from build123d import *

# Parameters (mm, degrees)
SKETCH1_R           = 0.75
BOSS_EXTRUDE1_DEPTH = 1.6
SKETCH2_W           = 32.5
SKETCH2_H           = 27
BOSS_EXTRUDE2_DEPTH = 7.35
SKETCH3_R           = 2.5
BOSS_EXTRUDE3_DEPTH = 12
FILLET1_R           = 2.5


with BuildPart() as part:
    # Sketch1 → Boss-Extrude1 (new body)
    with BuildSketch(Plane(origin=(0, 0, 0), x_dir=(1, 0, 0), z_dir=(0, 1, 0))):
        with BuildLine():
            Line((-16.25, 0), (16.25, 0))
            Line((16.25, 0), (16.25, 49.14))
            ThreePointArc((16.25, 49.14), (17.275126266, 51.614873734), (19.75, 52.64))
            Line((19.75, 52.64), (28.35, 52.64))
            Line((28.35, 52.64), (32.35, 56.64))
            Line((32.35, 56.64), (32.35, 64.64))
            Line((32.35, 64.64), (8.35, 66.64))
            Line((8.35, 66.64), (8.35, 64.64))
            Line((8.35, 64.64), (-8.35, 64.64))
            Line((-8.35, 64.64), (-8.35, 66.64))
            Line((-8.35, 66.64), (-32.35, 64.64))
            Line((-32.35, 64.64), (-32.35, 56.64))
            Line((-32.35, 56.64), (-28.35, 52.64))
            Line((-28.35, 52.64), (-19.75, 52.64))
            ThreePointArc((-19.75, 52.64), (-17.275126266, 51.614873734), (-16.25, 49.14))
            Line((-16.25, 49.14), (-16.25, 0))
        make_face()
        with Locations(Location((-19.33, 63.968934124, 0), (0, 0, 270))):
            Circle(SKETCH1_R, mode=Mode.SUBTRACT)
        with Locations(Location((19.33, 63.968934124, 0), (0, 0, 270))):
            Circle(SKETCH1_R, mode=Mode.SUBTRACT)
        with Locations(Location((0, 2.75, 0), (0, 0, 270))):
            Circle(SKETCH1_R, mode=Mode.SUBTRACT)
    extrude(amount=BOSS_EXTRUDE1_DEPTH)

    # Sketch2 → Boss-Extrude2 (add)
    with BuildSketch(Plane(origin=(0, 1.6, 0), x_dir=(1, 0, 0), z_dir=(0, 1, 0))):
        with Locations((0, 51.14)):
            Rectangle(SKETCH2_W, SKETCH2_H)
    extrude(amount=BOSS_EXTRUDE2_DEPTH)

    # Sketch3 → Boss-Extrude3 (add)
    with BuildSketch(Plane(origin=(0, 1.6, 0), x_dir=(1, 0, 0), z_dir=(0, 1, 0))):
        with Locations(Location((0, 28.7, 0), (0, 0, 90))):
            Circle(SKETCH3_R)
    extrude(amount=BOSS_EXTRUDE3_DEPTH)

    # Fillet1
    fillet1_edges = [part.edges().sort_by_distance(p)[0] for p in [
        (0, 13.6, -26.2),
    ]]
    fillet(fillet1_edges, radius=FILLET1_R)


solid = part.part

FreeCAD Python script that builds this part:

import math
import FreeCAD as App
import Part
import Sketcher


def edges_at(feature, points):
    """Names of the edges that pass closest to the given points."""
    edges = feature.Shape.Edges
    near = lambda p: min(range(len(edges)), key=lambda i: edges[i].distToShape(Part.Vertex(*p))[0])
    return sorted({f"Edge{near(p) + 1}" for p in points})

doc = App.newDocument("Part")
params = doc.addObject("Spreadsheet::Sheet", "Params")
for row, (alias, value) in enumerate([
    ("sketch1_diameter", "1.5 mm"),
    ("sketch1_radius", "3.5 mm"),
    ("sketch1_height", "8 mm"),
    ("sketch1_height2", "2 mm"),
    ("sketch1_width", "32.5 mm"),
    ("pad1_length", "1.6 mm"),
    ("sketch2_height", "27 mm"),
    ("sketch2_width", "32.5 mm"),
    ("pad2_length", "7.35 mm"),
    ("sketch3_diameter", "5 mm"),
    ("pad3_length", "12 mm"),
    ("fillet_radius", "2.5 mm"),
], start=1):
    params.set(f"A{row}", alias)
    params.set(f"B{row}", "=" + value)
    params.setAlias(f"B{row}", alias)

body = doc.addObject("PartDesign::Body", "Body")

# Sketch on XZ plane
sketch1 = body.newObject("Sketcher::SketchObject", "Sketch")
sketch1.AttachmentSupport = (doc.getObject("XZ_Plane"), [""])
sketch1.MapMode = "FlatFace"
sketch1.addGeometry([
    Part.LineSegment(App.Vector(-16.2, 0, 0), App.Vector(16.2, 0, 0)),  # 0
    Part.LineSegment(App.Vector(16.2, 0, 0), App.Vector(16.2, -49.1, 0)),  # 1
    Part.ArcOfCircle(Part.Circle(App.Vector(19.8, -49.1, 0), App.Vector(0, 0, 1), 3.5), math.radians(-180), math.radians(-90)),  # 2
    Part.LineSegment(App.Vector(19.8, -52.6, 0), App.Vector(28.4, -52.6, 0)),  # 3
    Part.LineSegment(App.Vector(28.4, -52.6, 0), App.Vector(32.4, -56.6, 0)),  # 4
    Part.LineSegment(App.Vector(32.4, -56.6, 0), App.Vector(32.4, -64.6, 0)),  # 5
    Part.LineSegment(App.Vector(32.4, -64.6, 0), App.Vector(8.3, -66.6, 0)),  # 6
    Part.LineSegment(App.Vector(8.3, -66.6, 0), App.Vector(8.3, -64.6, 0)),  # 7
    Part.LineSegment(App.Vector(8.3, -64.6, 0), App.Vector(-8.3, -64.6, 0)),  # 8
    Part.LineSegment(App.Vector(-8.3, -64.6, 0), App.Vector(-8.3, -66.6, 0)),  # 9
    Part.LineSegment(App.Vector(-8.3, -66.6, 0), App.Vector(-32.4, -64.6, 0)),  # 10
    Part.LineSegment(App.Vector(-32.4, -64.6, 0), App.Vector(-32.4, -56.6, 0)),  # 11
    Part.LineSegment(App.Vector(-32.4, -56.6, 0), App.Vector(-28.4, -52.6, 0)),  # 12
    Part.LineSegment(App.Vector(-28.4, -52.6, 0), App.Vector(-19.8, -52.6, 0)),  # 13
    Part.ArcOfCircle(Part.Circle(App.Vector(-19.8, -49.1, 0), App.Vector(0, 0, 1), 3.5), math.radians(-90), math.radians(0)),  # 14
    Part.LineSegment(App.Vector(-16.2, -49.1, 0), App.Vector(-16.2, 0, 0)),  # 15
    Part.Circle(App.Vector(0, -2.8, 0), App.Vector(0, 0, 1), 0.8),  # 16
    Part.Circle(App.Vector(-19.3, -64, 0), App.Vector(0, 0, 1), 0.8),  # 17
    Part.Circle(App.Vector(19.3, -64, 0), App.Vector(0, 0, 1), 0.8),  # 18
], False)
sketch1.addConstraint([
    Sketcher.Constraint("Coincident", 0, 2, 1, 1),
    Sketcher.Constraint("Tangent", 1, 2, 2, 1),
    Sketcher.Constraint("Tangent", 2, 2, 3, 1),
    Sketcher.Constraint("Coincident", 3, 2, 4, 1),
    Sketcher.Constraint("Coincident", 4, 2, 5, 1),
    Sketcher.Constraint("Coincident", 5, 2, 6, 1),
    Sketcher.Constraint("Coincident", 6, 2, 7, 1),
    Sketcher.Constraint("Coincident", 7, 2, 8, 1),
    Sketcher.Constraint("Coincident", 8, 2, 9, 1),
    Sketcher.Constraint("Coincident", 9, 2, 10, 1),
    Sketcher.Constraint("Coincident", 10, 2, 11, 1),
    Sketcher.Constraint("Coincident", 11, 2, 12, 1),
    Sketcher.Constraint("Coincident", 12, 2, 13, 1),
    Sketcher.Constraint("Tangent", 13, 2, 14, 1),
    Sketcher.Constraint("Tangent", 14, 2, 15, 1),
    Sketcher.Constraint("Coincident", 15, 2, 0, 1),
    Sketcher.Constraint("Horizontal", 0),
    Sketcher.Constraint("Vertical", 1),
    Sketcher.Constraint("Horizontal", 3),
    Sketcher.Constraint("Vertical", 5),
    Sketcher.Constraint("Vertical", 7),
    Sketcher.Constraint("Horizontal", 8),
    Sketcher.Constraint("Vertical", 9),
    Sketcher.Constraint("Vertical", 11),
    Sketcher.Constraint("Horizontal", 13),
    Sketcher.Constraint("Vertical", 15),
    Sketcher.Constraint("Equal", 2, 14),
    Sketcher.Constraint("Equal", 16, 17),
    Sketcher.Constraint("Equal", 17, 18),
    Sketcher.Constraint("Symmetric", 0, 2, 15, 2, -1, 1),
    Sketcher.Constraint("Symmetric", 17, 3, 18, 3, -2),
    Sketcher.Constraint("Symmetric", 6, 2, 9, 2, -2),
    Sketcher.Constraint("Symmetric", 5, 2, 10, 2, -2),
    Sketcher.Constraint("Symmetric", 3, 2, 12, 2, -2),
    Sketcher.Constraint("PointOnObject", 16, 3, -2),
    Sketcher.Constraint("Perpendicular", 4, 12),
    Sketcher.Constraint("Horizontal", 5, 2, 7, 2),
    Sketcher.Constraint("Horizontal", 4, 2, 11, 2),
    Sketcher.Constraint("Diameter", 16, 1.5),
    Sketcher.Constraint("Radius", 2, 3.5),
    Sketcher.Constraint("DistanceY", 5, 2, 5, 1, 8.0),
    Sketcher.Constraint("DistanceY", 7, 1, 7, 2, 2.0),
    Sketcher.Constraint("DistanceX", 0, 1, 0, 2, 32.5),
    Sketcher.Constraint("DistanceX", 3, 1, 3, 2, 8.6),
    Sketcher.Constraint("DistanceX", 8, 2, 8, 1, 16.7),
    Sketcher.Constraint("DistanceX", 3, 2, 4, 2, 4.0),
    Sketcher.Constraint("DistanceY", 1, 2, 1, 1, 49.14),
    Sketcher.Constraint("DistanceY", 16, 3, -1, 1, 2.75),
    Sketcher.Constraint("DistanceX", 17, 3, -1, 1, 19.33),
    Sketcher.Constraint("DistanceY", 17, 3, -1, 1, 63.968934),
])
sketch1.setExpression("Constraints[38]", "Params.sketch1_diameter")
sketch1.setExpression("Constraints[39]", "Params.sketch1_radius")
sketch1.setExpression("Constraints[40]", "Params.sketch1_height")
sketch1.setExpression("Constraints[41]", "Params.sketch1_height2")
sketch1.setExpression("Constraints[42]", "Params.sketch1_width")
pad1 = body.newObject("PartDesign::Pad", "Pad")
pad1.Profile = sketch1
pad1.setExpression("Length", "Params.pad1_length")
pad1.Reversed = True

# Sketch on XZ plane
sketch2 = body.newObject("Sketcher::SketchObject", "Sketch001")
sketch2.AttachmentSupport = (doc.getObject("XZ_Plane"), [""])
sketch2.MapMode = "FlatFace"
sketch2.AttachmentOffset = App.Placement(App.Vector(0, 0, -1.6), App.Rotation())
sketch2.addGeometry([
    Part.LineSegment(App.Vector(-16, -65, 0), App.Vector(-16, -38, 0)),
    Part.LineSegment(App.Vector(-16, -38, 0), App.Vector(16, -38, 0)),
    Part.LineSegment(App.Vector(16, -38, 0), App.Vector(16, -65, 0)),
    Part.LineSegment(App.Vector(16, -65, 0), App.Vector(-16, -65, 0)),
], False)
sketch2.addConstraint([
    Sketcher.Constraint("Coincident", 0, 2, 1, 1),
    Sketcher.Constraint("Coincident", 1, 2, 2, 1),
    Sketcher.Constraint("Coincident", 2, 2, 3, 1),
    Sketcher.Constraint("Coincident", 3, 2, 0, 1),
    Sketcher.Constraint("Vertical", 0),
    Sketcher.Constraint("Horizontal", 1),
    Sketcher.Constraint("Vertical", 2),
    Sketcher.Constraint("Horizontal", 3),
    Sketcher.Constraint("DistanceY", 0, 1, 0, 2, 27.0),
    Sketcher.Constraint("DistanceX", 1, 1, 1, 2, 32.5),
    Sketcher.Constraint("DistanceX", 0, 2, -1, 1, 16.25),
    Sketcher.Constraint("DistanceY", 0, 2, -1, 1, 37.64),
])
sketch2.setExpression("Constraints[8]", "Params.sketch2_height")
sketch2.setExpression("Constraints[9]", "Params.sketch2_width")
pad2 = body.newObject("PartDesign::Pad", "Pad001")
pad2.Profile = sketch2
pad2.setExpression("Length", "Params.pad2_length")
pad2.Reversed = True

# Sketch on XZ plane
sketch3 = body.newObject("Sketcher::SketchObject", "Sketch002")
sketch3.AttachmentSupport = (doc.getObject("XZ_Plane"), [""])
sketch3.MapMode = "FlatFace"
sketch3.AttachmentOffset = App.Placement(App.Vector(0, 0, -1.6), App.Rotation())
sketch3.addGeometry(Part.Circle(App.Vector(0, -28.7, 0), App.Vector(0, 0, 1), 2.5), False)
sketch3.addConstraint([
    Sketcher.Constraint("PointOnObject", 0, 3, -2),
    Sketcher.Constraint("Diameter", 0, 5.0),
    Sketcher.Constraint("DistanceY", 0, 3, -1, 1, 28.7),
])
sketch3.setExpression("Constraints[1]", "Params.sketch3_diameter")
pad3 = body.newObject("PartDesign::Pad", "Pad002")
pad3.Profile = sketch3
pad3.setExpression("Length", "Params.pad3_length")
pad3.Reversed = True
doc.recompute()

fillet = body.newObject("PartDesign::Fillet", "Fillet")
fillet.Base = (pad3, edges_at(pad3, [(0, 13.6, -26.2)]))
fillet.setExpression("Radius", "Params.fillet_radius")

doc.recompute()
